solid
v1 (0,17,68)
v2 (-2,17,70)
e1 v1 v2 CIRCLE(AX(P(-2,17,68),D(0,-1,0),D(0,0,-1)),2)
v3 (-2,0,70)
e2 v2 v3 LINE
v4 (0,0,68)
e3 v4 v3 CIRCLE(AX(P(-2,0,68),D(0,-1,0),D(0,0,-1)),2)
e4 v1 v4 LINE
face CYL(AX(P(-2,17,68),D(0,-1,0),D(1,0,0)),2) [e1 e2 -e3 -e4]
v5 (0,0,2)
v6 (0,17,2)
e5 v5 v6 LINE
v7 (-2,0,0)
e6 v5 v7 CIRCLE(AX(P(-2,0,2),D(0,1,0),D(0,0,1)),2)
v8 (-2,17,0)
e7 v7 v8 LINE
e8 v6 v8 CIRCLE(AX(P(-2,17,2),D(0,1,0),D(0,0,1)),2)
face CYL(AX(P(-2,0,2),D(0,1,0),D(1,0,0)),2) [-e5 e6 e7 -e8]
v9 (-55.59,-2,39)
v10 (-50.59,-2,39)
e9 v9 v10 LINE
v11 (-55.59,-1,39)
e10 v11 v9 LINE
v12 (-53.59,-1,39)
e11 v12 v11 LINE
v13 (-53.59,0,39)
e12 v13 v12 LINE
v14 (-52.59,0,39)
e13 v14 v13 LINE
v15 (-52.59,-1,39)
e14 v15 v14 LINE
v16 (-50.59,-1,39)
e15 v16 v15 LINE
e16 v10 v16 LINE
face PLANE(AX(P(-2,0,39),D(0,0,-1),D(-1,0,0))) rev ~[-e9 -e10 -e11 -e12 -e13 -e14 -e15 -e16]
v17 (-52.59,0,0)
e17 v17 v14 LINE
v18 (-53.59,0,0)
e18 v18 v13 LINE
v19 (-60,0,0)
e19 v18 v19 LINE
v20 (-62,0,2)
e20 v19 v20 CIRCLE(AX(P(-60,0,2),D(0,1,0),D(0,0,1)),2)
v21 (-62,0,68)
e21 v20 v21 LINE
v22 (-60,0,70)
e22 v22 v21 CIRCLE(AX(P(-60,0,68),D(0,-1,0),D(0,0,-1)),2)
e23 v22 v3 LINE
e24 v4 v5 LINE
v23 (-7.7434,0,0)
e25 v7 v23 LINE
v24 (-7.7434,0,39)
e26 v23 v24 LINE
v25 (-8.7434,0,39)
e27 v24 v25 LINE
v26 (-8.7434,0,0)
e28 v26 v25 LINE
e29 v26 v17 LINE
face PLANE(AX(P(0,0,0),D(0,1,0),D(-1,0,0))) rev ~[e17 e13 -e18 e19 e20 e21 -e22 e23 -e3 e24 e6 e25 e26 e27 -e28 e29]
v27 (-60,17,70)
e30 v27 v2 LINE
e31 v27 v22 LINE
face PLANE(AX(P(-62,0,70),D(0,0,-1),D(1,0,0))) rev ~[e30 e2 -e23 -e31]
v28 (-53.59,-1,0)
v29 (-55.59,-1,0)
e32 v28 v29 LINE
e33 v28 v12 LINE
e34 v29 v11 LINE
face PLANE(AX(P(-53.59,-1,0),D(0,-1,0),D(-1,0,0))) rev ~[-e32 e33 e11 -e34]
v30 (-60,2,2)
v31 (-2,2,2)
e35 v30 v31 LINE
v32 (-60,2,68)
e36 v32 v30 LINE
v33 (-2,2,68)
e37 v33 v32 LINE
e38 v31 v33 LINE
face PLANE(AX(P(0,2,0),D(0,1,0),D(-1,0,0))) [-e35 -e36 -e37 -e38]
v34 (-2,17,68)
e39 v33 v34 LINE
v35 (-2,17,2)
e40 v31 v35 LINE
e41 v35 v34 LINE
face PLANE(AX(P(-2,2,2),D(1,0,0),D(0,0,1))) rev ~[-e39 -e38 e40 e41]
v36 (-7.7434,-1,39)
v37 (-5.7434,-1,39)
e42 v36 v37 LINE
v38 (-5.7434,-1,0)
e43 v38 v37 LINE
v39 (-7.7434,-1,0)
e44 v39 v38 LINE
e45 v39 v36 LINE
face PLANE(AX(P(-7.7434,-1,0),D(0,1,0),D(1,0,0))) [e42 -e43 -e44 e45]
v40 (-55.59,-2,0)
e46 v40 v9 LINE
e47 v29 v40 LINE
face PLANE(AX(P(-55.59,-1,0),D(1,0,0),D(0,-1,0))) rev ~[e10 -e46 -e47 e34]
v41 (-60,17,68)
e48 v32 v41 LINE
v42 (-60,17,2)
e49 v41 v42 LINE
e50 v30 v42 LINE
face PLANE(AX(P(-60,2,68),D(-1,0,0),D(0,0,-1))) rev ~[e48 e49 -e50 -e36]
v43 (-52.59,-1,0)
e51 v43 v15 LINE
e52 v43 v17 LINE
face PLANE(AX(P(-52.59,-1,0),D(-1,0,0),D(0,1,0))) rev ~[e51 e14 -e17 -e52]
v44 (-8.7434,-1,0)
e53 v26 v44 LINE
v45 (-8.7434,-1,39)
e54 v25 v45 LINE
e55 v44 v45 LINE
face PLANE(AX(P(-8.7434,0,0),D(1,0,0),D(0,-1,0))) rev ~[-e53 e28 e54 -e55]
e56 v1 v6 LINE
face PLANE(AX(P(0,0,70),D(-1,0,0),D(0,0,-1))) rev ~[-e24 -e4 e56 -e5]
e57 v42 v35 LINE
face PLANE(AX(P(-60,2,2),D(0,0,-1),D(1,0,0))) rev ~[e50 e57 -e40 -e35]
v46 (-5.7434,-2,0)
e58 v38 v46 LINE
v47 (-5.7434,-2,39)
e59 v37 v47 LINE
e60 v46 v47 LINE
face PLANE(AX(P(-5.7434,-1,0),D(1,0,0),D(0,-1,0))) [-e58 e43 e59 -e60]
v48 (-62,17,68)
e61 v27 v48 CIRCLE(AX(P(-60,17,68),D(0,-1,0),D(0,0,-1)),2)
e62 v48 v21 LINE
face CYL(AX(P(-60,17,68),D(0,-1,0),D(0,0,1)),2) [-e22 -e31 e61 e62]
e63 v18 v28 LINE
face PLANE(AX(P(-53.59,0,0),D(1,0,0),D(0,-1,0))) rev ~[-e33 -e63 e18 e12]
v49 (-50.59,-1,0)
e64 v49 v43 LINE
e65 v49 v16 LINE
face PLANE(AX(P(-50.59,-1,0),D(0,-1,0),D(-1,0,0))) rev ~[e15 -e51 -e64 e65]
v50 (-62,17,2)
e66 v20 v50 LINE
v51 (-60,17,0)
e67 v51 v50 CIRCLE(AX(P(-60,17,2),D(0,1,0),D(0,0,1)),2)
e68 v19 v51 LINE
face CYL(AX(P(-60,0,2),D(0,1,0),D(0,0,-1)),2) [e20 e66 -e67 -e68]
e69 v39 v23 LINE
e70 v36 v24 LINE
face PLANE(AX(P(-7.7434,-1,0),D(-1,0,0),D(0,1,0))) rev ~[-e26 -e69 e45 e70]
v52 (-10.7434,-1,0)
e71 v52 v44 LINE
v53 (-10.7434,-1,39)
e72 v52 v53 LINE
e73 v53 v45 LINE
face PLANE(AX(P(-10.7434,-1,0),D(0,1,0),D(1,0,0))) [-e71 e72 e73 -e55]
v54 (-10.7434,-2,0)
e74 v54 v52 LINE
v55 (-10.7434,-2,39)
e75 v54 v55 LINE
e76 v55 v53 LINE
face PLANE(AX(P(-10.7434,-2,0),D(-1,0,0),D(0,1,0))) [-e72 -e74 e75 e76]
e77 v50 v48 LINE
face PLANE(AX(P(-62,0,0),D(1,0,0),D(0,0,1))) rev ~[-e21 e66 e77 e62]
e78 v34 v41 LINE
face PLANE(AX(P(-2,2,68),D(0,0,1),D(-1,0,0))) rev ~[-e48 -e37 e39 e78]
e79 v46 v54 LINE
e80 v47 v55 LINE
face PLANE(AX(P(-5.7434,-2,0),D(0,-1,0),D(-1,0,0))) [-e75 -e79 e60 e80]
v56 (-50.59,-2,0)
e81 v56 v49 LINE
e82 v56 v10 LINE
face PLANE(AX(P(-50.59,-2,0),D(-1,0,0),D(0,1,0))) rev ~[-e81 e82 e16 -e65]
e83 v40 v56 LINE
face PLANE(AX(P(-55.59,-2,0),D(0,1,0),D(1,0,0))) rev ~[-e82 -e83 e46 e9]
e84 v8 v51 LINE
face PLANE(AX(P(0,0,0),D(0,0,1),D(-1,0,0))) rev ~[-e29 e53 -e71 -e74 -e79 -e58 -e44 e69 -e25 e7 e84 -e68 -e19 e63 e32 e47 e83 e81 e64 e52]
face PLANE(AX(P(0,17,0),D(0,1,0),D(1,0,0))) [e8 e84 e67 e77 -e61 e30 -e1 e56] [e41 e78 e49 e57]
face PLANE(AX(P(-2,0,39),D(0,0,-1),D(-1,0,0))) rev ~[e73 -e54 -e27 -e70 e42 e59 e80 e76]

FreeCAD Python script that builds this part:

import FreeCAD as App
import Part
import Sketcher
from FreeCAD import Vector


def edges_at(feature, points):
    """Names of the edges that pass closest to the given points."""
    edges = feature.Shape.Edges
    near = lambda p: min(range(len(edges)), key=lambda i: edges[i].distToShape(Part.Vertex(*p))[0])
    return sorted({f"Edge{near(p) + 1}" for p in points})


def add_polygon(sketch, points):
    """Adds a closed chain of lines whose ends are joined by coincident constraints."""
    first, n = sketch.GeometryCount, len(points)
    for a, b in zip(points, points[1:] + points[:1]):
        sketch.addGeometry(Part.LineSegment(App.Vector(*a, 0), App.Vector(*b, 0)), False)
    for i in range(n):
        sketch.addConstraint(Sketcher.Constraint("Coincident", first + i, 2, first + (i + 1) % n, 1))

doc = App.newDocument("Part")
params = doc.addObject("Spreadsheet::Sheet", "Params")
for row, (alias, value) in enumerate([
    ("sketch1_width", "62 mm"),
    ("sketch1_height", "70 mm"),
    ("pad1_length", "2 mm"),
    ("sketch2_width", "62 mm"),
    ("sketch2_height", "70 mm"),
    ("pad2_length", "15 mm"),
    ("fillet_radius", "2 mm"),
    ("sketch3_width", "1 mm"),
    ("sketch3_width2", "2 mm"),
    ("pad3_length", "39 mm"),
], start=1):
    params.set(f"A{row}", alias)
    params.set(f"B{row}", "=" + value)
    params.setAlias(f"B{row}", alias)

body = doc.addObject("PartDesign::Body", "Body")

# Sketch on XZ plane
sketch1 = body.newObject("Sketcher::SketchObject", "Sketch")
sketch1.AttachmentSupport = (doc.getObject("XZ_Plane"), [""])
sketch1.MapMode = "FlatFace"
add_polygon(sketch1, [(0, 70), (0, 0), (-62, 0), (-62, 70)])  # lines 0-3
sketch1.addConstraint([
    Sketcher.Constraint("Vertical", 0),
    Sketcher.Constraint("Horizontal", 1),
    Sketcher.Constraint("Vertical", 2),
    Sketcher.Constraint("Horizontal", 3),
    Sketcher.Constraint("Coincident", 0, 2, -1, 1),
    Sketcher.Constraint("DistanceX", 1, 2, 1, 1, 62.0),
    Sketcher.Constraint("DistanceY", 0, 2, 0, 1, 70.0),
])
sketch1.setExpression("Constraints[9]", "Params.sketch1_width")
sketch1.setExpression("Constraints[10]", "Params.sketch1_height")
pad1 = body.newObject("PartDesign::Pad", "Pad")
pad1.Profile = sketch1
pad1.setExpression("Length", "Params.pad1_length")
pad1.Reversed = True

# Sketch on XZ plane
sketch2 = body.newObject("Sketcher::SketchObject", "Sketch001")
sketch2.AttachmentSupport = (doc.getObject("XZ_Plane"), [""])
sketch2.MapMode = "FlatFace"
sketch2.AttachmentOffset = App.Placement(Vector(0, 0, -2), App.Rotation())
add_polygon(sketch2, [(0, 70), (0, 0), (-62, 0), (-62, 70)])  # lines 0-3
add_polygon(sketch2, [(-60, 68), (-60, 2), (-2, 2), (-2, 68)])  # lines 4-7
sketch2.addConstraint([
    Sketcher.Constraint("Vertical", 0),
    Sketcher.Constraint("Horizontal", 1),
    Sketcher.Constraint("Vertical", 2),
    Sketcher.Constraint("Horizontal", 3),
    Sketcher.Constraint("Vertical", 4),
    Sketcher.Constraint("Horizontal", 5),
    Sketcher.Constraint("Vertical", 6),
    Sketcher.Constraint("Horizontal", 7),
    Sketcher.Constraint("Coincident", 0, 2, -1, 1),
    Sketcher.Constraint("DistanceY", -1, 1, 4, 2, 2.0),
    Sketcher.Constraint("DistanceX", 5, 2, -1, 1, 2.0),
    Sketcher.Constraint("DistanceX", 1, 2, 4, 2, 2.0),
    Sketcher.Constraint("DistanceY", 6, 2, 3, 2, 2.0),
    Sketcher.Constraint("DistanceX", 1, 2, 1, 1, 62.0),
    Sketcher.Constraint("DistanceY", 0, 2, 0, 1, 70.0),
])
sketch2.setExpression("Constraints[21]", "Params.sketch2_width")
sketch2.setExpression("Constraints[22]", "Params.sketch2_height")
pad2 = body.newObject("PartDesign::Pad", "Pad001")
pad2.Profile = sketch2
pad2.setExpression("Length", "Params.pad2_length")
pad2.Reversed = True
doc.recompute()

fillet = body.newObject("PartDesign::Fillet", "Fillet")
fillet.Base = (pad2, edges_at(pad2, [
    (-62, 8.5, 70),
    (-62, 8.5, 0),
    (0, 8.5, 0),
    (0, 8.5, 70),
]))
fillet.setExpression("Radius", "Params.fillet_radius")

# Sketch on XY plane
sketch3 = body.newObject("Sketcher::SketchObject", "Sketch002")
sketch3.AttachmentSupport = (doc.getObject("XY_Plane"), [""])
sketch3.MapMode = "FlatFace"
add_polygon(sketch3, [(-53.6, 0), (-52.6, 0), (-52.6, -1), (-50.6, -1), (-50.6, -2), (-55.6, -2), (-55.6, -1), (-53.6, -1)])  # lines 0-7
add_polygon(sketch3, [(-8.7, 0), (-7.7, 0), (-7.7, -1), (-5.7, -1), (-5.7, -2), (-10.7, -2), (-10.7, -1), (-8.7, -1)])  # lines 8-15
sketch3.addConstraint([
    Sketcher.Constraint("Horizontal", 0),
    Sketcher.Constraint("Vertical", 1),
    Sketcher.Constraint("Horizontal", 2),
    Sketcher.Constraint("Vertical", 3),
    Sketcher.Constraint("Horizontal", 4),
    Sketcher.Constraint("Vertical", 5),
    Sketcher.Constraint("Horizontal", 6),
    Sketcher.Constraint("Vertical", 7),
    Sketcher.Constraint("Horizontal", 8),
    Sketcher.Constraint("Vertical", 9),
    Sketcher.Constraint("Horizontal", 10),
    Sketcher.Constraint("Vertical", 11),
    Sketcher.Constraint("Horizontal", 12),
    Sketcher.Constraint("Vertical", 13),
    Sketcher.Constraint("Horizontal", 14),
    Sketcher.Constraint("Vertical", 15),
    Sketcher.Constraint("PointOnObject", 0, 2, -1),
    Sketcher.Constraint("PointOnObject", 8, 2, -1),
    Sketcher.Constraint("Horizontal", 2, 2, 5, 2),
    Sketcher.Constraint("Horizontal", 6, 2, 9, 2),
    Sketcher.Constraint("Horizontal", 4, 2, 11, 2),
    Sketcher.Constraint("Horizontal", 10, 2, 13, 2),
    Sketcher.Constraint("Equal", 2, 6),
    Sketcher.Constraint("Equal", 0, 8),
    Sketcher.Constraint("Equal", 6, 10),
    Sketcher.Constraint("Equal", 4, 12),
    Sketcher.Constraint("Equal", 8, 1),
    Sketcher.Constraint("Equal", 1, 3),
    Sketcher.Constraint("DistanceX", 0, 1, 0, 2, 1.0),
    Sketcher.Constraint("DistanceX", 2, 1, 2, 2, 2.0),
    Sketcher.Constraint("DistanceX", 0, 2, -1, 1, 52.59),
    Sketcher.Constraint("DistanceX", 8, 2, -1, 1, 7.7434),
])
sketch3.setExpression("Constraints[44]", "Params.sketch3_width")
sketch3.setExpression("Constraints[45]", "Params.sketch3_width2")
pad3 = body.newObject("PartDesign::Pad", "Pad002")
pad3.Profile = sketch3
pad3.setExpression("Length", "Params.pad3_length")

doc.recompute()
